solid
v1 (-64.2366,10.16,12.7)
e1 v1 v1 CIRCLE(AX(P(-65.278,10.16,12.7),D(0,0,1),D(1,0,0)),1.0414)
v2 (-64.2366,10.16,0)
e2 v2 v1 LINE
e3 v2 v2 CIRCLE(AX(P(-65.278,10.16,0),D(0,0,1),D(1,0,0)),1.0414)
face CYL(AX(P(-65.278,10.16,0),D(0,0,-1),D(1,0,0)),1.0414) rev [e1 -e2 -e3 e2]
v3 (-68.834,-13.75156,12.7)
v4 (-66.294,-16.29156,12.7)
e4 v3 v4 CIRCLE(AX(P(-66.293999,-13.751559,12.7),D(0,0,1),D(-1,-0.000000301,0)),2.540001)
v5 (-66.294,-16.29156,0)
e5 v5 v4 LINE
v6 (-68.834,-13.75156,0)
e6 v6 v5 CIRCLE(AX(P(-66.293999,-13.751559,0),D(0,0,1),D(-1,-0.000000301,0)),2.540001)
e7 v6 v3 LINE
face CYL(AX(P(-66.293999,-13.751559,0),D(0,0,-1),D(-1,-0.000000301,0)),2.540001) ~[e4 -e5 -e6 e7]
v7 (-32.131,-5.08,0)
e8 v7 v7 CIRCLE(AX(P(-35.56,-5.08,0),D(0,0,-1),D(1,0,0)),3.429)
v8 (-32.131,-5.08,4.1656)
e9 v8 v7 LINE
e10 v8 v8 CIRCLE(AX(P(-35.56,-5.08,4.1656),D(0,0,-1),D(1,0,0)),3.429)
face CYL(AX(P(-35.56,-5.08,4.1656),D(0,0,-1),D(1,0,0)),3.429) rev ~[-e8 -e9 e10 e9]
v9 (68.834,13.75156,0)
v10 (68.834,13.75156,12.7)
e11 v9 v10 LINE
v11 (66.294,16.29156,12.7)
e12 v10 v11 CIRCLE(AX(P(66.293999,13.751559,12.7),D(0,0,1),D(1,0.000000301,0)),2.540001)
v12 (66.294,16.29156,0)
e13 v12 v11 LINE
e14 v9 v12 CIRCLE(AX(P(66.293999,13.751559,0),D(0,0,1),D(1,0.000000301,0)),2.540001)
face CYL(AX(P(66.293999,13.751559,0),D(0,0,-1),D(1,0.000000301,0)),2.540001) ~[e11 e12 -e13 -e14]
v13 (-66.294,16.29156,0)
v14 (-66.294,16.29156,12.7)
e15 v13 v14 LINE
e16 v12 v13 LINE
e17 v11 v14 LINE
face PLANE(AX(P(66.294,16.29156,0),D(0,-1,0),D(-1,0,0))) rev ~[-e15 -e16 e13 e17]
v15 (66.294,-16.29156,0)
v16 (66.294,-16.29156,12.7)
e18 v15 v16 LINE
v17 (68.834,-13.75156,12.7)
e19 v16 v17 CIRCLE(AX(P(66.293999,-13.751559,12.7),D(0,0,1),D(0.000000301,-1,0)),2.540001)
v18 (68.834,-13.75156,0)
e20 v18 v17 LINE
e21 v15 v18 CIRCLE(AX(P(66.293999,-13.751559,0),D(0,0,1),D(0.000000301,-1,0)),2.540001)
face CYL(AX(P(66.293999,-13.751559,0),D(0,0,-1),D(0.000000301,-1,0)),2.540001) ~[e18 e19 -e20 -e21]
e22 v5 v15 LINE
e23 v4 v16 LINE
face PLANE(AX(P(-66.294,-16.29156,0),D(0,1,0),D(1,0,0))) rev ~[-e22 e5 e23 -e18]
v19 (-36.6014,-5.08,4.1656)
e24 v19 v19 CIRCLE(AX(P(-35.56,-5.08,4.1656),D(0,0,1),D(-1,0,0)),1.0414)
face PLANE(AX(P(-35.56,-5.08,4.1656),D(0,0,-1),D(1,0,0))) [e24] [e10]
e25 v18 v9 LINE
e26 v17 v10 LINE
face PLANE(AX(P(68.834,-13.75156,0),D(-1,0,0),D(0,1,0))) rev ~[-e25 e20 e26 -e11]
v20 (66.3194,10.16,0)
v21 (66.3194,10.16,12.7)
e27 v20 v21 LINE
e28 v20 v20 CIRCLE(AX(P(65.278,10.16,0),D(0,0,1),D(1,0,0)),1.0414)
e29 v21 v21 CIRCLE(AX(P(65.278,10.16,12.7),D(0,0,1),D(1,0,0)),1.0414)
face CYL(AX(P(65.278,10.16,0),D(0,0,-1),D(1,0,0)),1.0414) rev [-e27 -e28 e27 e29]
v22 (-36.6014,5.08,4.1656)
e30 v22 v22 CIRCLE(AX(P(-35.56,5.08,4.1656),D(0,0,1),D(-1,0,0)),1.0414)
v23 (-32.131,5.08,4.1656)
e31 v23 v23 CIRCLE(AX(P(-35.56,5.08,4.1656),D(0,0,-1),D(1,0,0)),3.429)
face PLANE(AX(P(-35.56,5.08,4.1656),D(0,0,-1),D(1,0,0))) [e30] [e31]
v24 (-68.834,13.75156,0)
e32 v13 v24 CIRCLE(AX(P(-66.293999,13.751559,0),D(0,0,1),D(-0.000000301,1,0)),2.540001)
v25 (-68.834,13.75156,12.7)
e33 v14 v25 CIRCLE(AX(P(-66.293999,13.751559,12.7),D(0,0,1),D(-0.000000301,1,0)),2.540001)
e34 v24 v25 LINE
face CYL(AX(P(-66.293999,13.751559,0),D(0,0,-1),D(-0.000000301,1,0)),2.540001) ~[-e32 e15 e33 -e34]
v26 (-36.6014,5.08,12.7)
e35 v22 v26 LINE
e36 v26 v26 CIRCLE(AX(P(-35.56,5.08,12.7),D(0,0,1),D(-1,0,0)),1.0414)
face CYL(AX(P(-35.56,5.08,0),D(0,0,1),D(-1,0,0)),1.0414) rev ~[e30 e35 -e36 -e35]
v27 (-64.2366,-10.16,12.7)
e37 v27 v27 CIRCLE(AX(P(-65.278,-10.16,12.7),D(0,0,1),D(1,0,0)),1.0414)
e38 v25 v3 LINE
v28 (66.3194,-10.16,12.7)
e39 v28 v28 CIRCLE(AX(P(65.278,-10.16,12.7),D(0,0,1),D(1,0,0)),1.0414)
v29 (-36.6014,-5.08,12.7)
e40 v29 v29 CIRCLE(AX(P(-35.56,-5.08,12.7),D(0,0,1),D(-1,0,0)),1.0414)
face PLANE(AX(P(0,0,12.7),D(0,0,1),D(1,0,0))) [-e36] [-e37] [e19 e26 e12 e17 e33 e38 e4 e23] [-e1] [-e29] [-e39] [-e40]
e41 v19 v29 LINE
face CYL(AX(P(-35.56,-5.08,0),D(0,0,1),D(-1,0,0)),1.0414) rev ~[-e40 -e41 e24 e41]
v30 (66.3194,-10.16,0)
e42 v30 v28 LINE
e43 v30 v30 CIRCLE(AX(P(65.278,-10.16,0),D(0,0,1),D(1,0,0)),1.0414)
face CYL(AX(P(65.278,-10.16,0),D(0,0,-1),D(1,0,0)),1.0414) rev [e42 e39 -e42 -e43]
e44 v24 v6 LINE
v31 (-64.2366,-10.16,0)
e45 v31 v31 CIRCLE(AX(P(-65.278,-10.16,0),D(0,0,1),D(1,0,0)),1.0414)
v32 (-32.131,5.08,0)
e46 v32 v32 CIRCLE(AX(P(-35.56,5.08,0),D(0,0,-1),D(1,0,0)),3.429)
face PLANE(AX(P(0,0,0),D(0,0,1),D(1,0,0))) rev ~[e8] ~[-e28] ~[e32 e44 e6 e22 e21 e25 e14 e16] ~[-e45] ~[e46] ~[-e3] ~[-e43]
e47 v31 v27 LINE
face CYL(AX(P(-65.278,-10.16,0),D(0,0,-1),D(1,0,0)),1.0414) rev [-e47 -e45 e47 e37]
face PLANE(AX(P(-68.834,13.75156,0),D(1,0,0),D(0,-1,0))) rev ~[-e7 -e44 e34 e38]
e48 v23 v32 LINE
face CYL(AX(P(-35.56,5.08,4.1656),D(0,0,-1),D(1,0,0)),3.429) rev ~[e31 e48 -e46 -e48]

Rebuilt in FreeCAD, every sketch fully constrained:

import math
import FreeCAD as App
import Part
import Sketcher

V = App.Vector
Q = App.Units.Quantity

doc = App.newDocument("Part")
body = doc.addObject("PartDesign::Body", "Body")

# Sketch on XY plane
sketch1 = body.newObject("Sketcher::SketchObject", "Sketch")
sketch1.AttachmentSupport = (doc.getObject("XY_Plane"), [""])
sketch1.MapMode = "FlatFace"
sketch1.addGeometry([
    Part.ArcOfCircle(Part.Circle(V(-66.293999, -13.751559, 0), V(0, 0, 1), 2.540001), math.radians(-179.999983), math.radians(-90.000017)),  # 0
    Part.LineSegment(V(-66.294, -16.29156, 0), V(66.294, -16.29156, 0)),  # 1
    Part.ArcOfCircle(Part.Circle(V(66.293999, -13.751559, 0), V(0, 0, 1), 2.540001), math.radians(-89.999983), math.radians(-0.000017)),  # 2
    Part.LineSegment(V(68.834, -13.75156, 0), V(68.834, 13.75156, 0)),  # 3
    Part.ArcOfCircle(Part.Circle(V(66.293999, 13.751559, 0), V(0, 0, 1), 2.540001), math.radians(0.000017), math.radians(89.999983)),  # 4
    Part.LineSegment(V(66.294, 16.29156, 0), V(-66.294, 16.29156, 0)),  # 5
    Part.ArcOfCircle(Part.Circle(V(-66.293999, 13.751559, 0), V(0, 0, 1), 2.540001), math.radians(90.000017), math.radians(179.999983)),  # 6
    Part.LineSegment(V(-68.834, 13.75156, 0), V(-68.834, -13.75156, 0)),  # 7
    Part.Circle(V(-65.278, -10.16, 0), V(0, 0, 1), 1.0414),  # 8
    Part.Circle(V(65.278, -10.16, 0), V(0, 0, 1), 1.0414),  # 9
    Part.Circle(V(-65.278, 10.16, 0), V(0, 0, 1), 1.0414),  # 10
    Part.Circle(V(65.278, 10.16, 0), V(0, 0, 1), 1.0414),  # 11
], False)
sketch1.addConstraint([
    Sketcher.Constraint("Tangent", 0, 2, 1, 1),
    Sketcher.Constraint("Tangent", 1, 2, 2, 1),
    Sketcher.Constraint("Tangent", 2, 2, 3, 1),
    Sketcher.Constraint("Tangent", 3, 2, 4, 1),
    Sketcher.Constraint("Tangent", 4, 2, 5, 1),
    Sketcher.Constraint("Tangent", 5, 2, 6, 1),
    Sketcher.Constraint("Tangent", 6, 2, 7, 1),
    Sketcher.Constraint("Tangent", 7, 2, 0, 1),
    Sketcher.Constraint("Horizontal", 1),
    Sketcher.Constraint("Vertical", 3),
    Sketcher.Constraint("Horizontal", 5),
    Sketcher.Constraint("Vertical", 7),
    Sketcher.Constraint("Equal", 0, 2),
    Sketcher.Constraint("Equal", 2, 4),
    Sketcher.Constraint("Equal", 4, 6),
    Sketcher.Constraint("Equal", 8, 9),
    Sketcher.Constraint("Equal", 9, 10),
    Sketcher.Constraint("Equal", 10, 11),
    Sketcher.Constraint("Symmetric", 0, 3, 4, 3, -1, 1),
    Sketcher.Constraint("Symmetric", 9, 3, 10, 3, -1, 1),
    Sketcher.Constraint("Symmetric", 8, 3, 11, 3, -1, 1),
    Sketcher.Constraint("Symmetric", 8, 3, 9, 3, -2),
    Sketcher.Constraint("Radius", 0, Q("0.1 in")),
    Sketcher.Constraint("Diameter", 8, Q("0.082 in")),
    Sketcher.Constraint("DistanceX", 1, 1, 1, 2, Q("5.22 in")),
    Sketcher.Constraint("DistanceY", 8, 3, -1, 1, Q("0.4 in")),
    Sketcher.Constraint("DistanceX", 8, 3, -1, 1, Q("2.57 in")),
    Sketcher.Constraint("DistanceY", 3, 1, 3, 2, Q("1.0828 in")),
])
pad1 = body.newObject("PartDesign::Pad", "Pad")
pad1.Profile = sketch1
pad1.Length = Q("0.5 in")

# Sketch on XY plane
sketch2 = body.newObject("Sketcher::SketchObject", "Sketch001")
sketch2.AttachmentSupport = (doc.getObject("XY_Plane"), [""])
sketch2.MapMode = "FlatFace"
sketch2.addGeometry([
    Part.Circle(V(-35.56, -5.08, 0), V(0, 0, 1), 1.0414),
    Part.Circle(V(-35.56, 5.08, 0), V(0, 0, 1), 1.0414),
], False)
sketch2.addConstraint([
    Sketcher.Constraint("Equal", 0, 1),
    Sketcher.Constraint("Symmetric", 0, 3, 1, 3, -1),
    Sketcher.Constraint("Diameter", 0, Q("0.082 in")),
    Sketcher.Constraint("DistanceX", 0, 3, -1, 1, Q("1.4 in")),
    Sketcher.Constraint("DistanceY", 0, 3, -1, 1, Q("0.2 in")),
])
doc.recompute()
hole = body.newObject("PartDesign::Hole", "Hole")
hole.Profile = sketch2
hole.ThreadType = "None"
hole.Diameter = Q("0.082 in")
hole.DepthType = "ThroughAll"
hole.HoleCutType = "Counterbore"
hole.HoleCutDiameter = Q("0.27 in")
hole.HoleCutDepth = Q("0.164 in")
hole.Reversed = True

doc.recompute()
